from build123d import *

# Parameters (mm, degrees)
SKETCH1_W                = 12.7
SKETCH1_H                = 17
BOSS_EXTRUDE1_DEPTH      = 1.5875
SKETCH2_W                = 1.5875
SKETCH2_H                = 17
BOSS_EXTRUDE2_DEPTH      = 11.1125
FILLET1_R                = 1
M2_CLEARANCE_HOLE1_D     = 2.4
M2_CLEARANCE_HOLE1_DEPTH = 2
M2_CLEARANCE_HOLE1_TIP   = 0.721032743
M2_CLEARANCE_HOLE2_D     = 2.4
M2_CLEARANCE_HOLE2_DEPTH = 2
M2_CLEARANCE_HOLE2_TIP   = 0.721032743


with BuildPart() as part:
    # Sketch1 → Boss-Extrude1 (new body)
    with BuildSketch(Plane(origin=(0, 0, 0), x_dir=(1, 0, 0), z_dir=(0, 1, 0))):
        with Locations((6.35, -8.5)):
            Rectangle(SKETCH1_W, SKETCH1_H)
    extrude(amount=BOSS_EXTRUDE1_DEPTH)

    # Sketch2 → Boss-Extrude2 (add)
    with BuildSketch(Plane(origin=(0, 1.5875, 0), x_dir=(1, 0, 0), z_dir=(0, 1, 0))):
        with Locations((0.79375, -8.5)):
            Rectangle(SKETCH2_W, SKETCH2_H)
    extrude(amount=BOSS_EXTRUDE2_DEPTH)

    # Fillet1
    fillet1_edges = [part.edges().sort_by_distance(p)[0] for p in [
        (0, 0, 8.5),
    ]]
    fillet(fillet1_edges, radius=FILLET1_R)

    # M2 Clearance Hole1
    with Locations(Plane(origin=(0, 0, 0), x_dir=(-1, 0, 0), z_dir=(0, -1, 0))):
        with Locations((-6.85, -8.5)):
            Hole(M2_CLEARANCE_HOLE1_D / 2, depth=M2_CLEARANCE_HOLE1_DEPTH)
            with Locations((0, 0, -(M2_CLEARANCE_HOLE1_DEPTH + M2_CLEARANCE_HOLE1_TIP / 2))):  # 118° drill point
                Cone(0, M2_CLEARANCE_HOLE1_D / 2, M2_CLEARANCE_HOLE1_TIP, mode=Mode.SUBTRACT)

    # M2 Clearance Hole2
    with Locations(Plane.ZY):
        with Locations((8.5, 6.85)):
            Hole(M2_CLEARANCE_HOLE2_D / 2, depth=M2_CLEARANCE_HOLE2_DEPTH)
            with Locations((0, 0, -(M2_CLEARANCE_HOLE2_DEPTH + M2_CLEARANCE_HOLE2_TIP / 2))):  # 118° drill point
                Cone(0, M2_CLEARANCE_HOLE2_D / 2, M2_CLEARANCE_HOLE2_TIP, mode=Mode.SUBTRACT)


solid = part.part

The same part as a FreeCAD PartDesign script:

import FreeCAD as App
import Part
import Sketcher
from FreeCAD import Vector


def edges_at(feature, points):
    """Names of the edges that pass closest to the given points."""
    edges = feature.Shape.Edges
    near = lambda p: min(range(len(edges)), key=lambda i: edges[i].distToShape(Part.Vertex(*p))[0])
    return sorted({f"Edge{near(p) + 1}" for p in points})


def add_polygon(sketch, points):
    """Adds a closed chain of lines whose ends are joined by coincident constraints."""
    first, n = sketch.GeometryCount, len(points)
    for a, b in zip(points, points[1:] + points[:1]):
        sketch.addGeometry(Part.LineSegment(App.Vector(*a, 0), App.Vector(*b, 0)), False)
    for i in range(n):
        sketch.addConstraint(Sketcher.Constraint("Coincident", first + i, 2, first + (i + 1) % n, 1))

doc = App.newDocument("Part")
body = doc.addObject("PartDesign::Body", "Body")

# Sketch on XZ plane
sketch1 = body.newObject("Sketcher::SketchObject", "Sketch")
sketch1.AttachmentSupport = (doc.getObject("XZ_Plane"), [""])
sketch1.MapMode = "FlatFace"
add_polygon(sketch1, [(0, 0), (0, 17), (13, 17), (13, 0)])  # lines 0-3
sketch1.addConstraint(Sketcher.Constraint("Vertical", 0))
sketch1.addConstraint(Sketcher.Constraint("Horizontal", 1))
sketch1.addConstraint(Sketcher.Constraint("Vertical", 2))
sketch1.addConstraint(Sketcher.Constraint("Horizontal", 3))
sketch1.addConstraint(Sketcher.Constraint("Coincident", 3, 2, -1, 1))
sketch1.addConstraint(Sketcher.Constraint("DistanceY", 0, 1, 0, 2, 17.0))
sketch1.addConstraint(Sketcher.Constraint("DistanceX", 1, 1, 1, 2, 12.7))
pad1 = body.newObject("PartDesign::Pad", "Pad")
pad1.Profile = sketch1
pad1.Length = 1.5875
pad1.Reversed = True

# Sketch on XZ plane
sketch2 = body.newObject("Sketcher::SketchObject", "Sketch001")
sketch2.AttachmentSupport = (doc.getObject("XZ_Plane"), [""])
sketch2.MapMode = "FlatFace"
sketch2.AttachmentOffset = App.Placement(Vector(0, 0, -1.5875), App.Rotation())
add_polygon(sketch2, [(0, 0), (0, 17), (1.6, 17), (1.6, 0)])  # lines 0-3
sketch2.addConstraint(Sketcher.Constraint("Vertical", 0))
sketch2.addConstraint(Sketcher.Constraint("Horizontal", 1))
sketch2.addConstraint(Sketcher.Constraint("Vertical", 2))
sketch2.addConstraint(Sketcher.Constraint("Horizontal", 3))
sketch2.addConstraint(Sketcher.Constraint("Coincident", 3, 2, -1, 1))
sketch2.addConstraint(Sketcher.Constraint("DistanceY", 0, 1, 0, 2, 17.0))
sketch2.addConstraint(Sketcher.Constraint("DistanceX", 1, 1, 1, 2, 1.5875))
pad2 = body.newObject("PartDesign::Pad", "Pad001")
pad2.Profile = sketch2
pad2.Length = 11.1125
pad2.Reversed = True
doc.recompute()

fillet = body.newObject("PartDesign::Fillet", "Fillet")
fillet.Base = (pad2, edges_at(pad2, [(0, 0, 8.5)]))
fillet.Radius = 1

# Sketch on XZ plane
sketch3 = body.newObject("Sketcher::SketchObject", "Sketch002")
sketch3.AttachmentSupport = (doc.getObject("XZ_Plane"), [""])
sketch3.MapMode = "FlatFace"
sketch3.addGeometry(Part.Circle(Vector(6.8, 8.5, 0), Vector(0, 0, 1), 1.2), False)
sketch3.addConstraint(Sketcher.Constraint("Diameter", 0, 2.4))
sketch3.addConstraint(Sketcher.Constraint("DistanceY", -1, 1, 0, 3, 8.5))
sketch3.addConstraint(Sketcher.Constraint("DistanceX", -1, 1, 0, 3, 6.85))
doc.recompute()
hole = body.newObject("PartDesign::Hole", "Hole")
hole.Profile = sketch3
hole.ThreadType = "None"
hole.Diameter = 2.4
hole.DepthType = "Dimension"
hole.Depth = 2
hole.DrillPoint = "Angled"
hole.DrillPointAngle = 118

# Sketch on YZ plane
sketch4 = body.newObject("Sketcher::SketchObject", "Sketch003")
sketch4.AttachmentSupport = (doc.getObject("YZ_Plane"), [""])
sketch4.MapMode = "FlatFace"
sketch4.addGeometry(Part.Circle(Vector(6.8, 8.5, 0), Vector(0, 0, 1), 1.2), False)
sketch4.addConstraint(Sketcher.Constraint("Diameter", 0, 2.4))
sketch4.addConstraint(Sketcher.Constraint("DistanceY", -1, 1, 0, 3, 8.5))
sketch4.addConstraint(Sketcher.Constraint("DistanceX", -1, 1, 0, 3, 6.85))
doc.recompute()
hole2 = body.newObject("PartDesign::Hole", "Hole001")
hole2.Profile = sketch4
hole2.ThreadType = "None"
hole2.Diameter = 2.4
hole2.DepthType = "Dimension"
hole2.Depth = 2
hole2.DrillPoint = "Angled"
hole2.DrillPointAngle = 118
hole2.Reversed = True

doc.recompute()
